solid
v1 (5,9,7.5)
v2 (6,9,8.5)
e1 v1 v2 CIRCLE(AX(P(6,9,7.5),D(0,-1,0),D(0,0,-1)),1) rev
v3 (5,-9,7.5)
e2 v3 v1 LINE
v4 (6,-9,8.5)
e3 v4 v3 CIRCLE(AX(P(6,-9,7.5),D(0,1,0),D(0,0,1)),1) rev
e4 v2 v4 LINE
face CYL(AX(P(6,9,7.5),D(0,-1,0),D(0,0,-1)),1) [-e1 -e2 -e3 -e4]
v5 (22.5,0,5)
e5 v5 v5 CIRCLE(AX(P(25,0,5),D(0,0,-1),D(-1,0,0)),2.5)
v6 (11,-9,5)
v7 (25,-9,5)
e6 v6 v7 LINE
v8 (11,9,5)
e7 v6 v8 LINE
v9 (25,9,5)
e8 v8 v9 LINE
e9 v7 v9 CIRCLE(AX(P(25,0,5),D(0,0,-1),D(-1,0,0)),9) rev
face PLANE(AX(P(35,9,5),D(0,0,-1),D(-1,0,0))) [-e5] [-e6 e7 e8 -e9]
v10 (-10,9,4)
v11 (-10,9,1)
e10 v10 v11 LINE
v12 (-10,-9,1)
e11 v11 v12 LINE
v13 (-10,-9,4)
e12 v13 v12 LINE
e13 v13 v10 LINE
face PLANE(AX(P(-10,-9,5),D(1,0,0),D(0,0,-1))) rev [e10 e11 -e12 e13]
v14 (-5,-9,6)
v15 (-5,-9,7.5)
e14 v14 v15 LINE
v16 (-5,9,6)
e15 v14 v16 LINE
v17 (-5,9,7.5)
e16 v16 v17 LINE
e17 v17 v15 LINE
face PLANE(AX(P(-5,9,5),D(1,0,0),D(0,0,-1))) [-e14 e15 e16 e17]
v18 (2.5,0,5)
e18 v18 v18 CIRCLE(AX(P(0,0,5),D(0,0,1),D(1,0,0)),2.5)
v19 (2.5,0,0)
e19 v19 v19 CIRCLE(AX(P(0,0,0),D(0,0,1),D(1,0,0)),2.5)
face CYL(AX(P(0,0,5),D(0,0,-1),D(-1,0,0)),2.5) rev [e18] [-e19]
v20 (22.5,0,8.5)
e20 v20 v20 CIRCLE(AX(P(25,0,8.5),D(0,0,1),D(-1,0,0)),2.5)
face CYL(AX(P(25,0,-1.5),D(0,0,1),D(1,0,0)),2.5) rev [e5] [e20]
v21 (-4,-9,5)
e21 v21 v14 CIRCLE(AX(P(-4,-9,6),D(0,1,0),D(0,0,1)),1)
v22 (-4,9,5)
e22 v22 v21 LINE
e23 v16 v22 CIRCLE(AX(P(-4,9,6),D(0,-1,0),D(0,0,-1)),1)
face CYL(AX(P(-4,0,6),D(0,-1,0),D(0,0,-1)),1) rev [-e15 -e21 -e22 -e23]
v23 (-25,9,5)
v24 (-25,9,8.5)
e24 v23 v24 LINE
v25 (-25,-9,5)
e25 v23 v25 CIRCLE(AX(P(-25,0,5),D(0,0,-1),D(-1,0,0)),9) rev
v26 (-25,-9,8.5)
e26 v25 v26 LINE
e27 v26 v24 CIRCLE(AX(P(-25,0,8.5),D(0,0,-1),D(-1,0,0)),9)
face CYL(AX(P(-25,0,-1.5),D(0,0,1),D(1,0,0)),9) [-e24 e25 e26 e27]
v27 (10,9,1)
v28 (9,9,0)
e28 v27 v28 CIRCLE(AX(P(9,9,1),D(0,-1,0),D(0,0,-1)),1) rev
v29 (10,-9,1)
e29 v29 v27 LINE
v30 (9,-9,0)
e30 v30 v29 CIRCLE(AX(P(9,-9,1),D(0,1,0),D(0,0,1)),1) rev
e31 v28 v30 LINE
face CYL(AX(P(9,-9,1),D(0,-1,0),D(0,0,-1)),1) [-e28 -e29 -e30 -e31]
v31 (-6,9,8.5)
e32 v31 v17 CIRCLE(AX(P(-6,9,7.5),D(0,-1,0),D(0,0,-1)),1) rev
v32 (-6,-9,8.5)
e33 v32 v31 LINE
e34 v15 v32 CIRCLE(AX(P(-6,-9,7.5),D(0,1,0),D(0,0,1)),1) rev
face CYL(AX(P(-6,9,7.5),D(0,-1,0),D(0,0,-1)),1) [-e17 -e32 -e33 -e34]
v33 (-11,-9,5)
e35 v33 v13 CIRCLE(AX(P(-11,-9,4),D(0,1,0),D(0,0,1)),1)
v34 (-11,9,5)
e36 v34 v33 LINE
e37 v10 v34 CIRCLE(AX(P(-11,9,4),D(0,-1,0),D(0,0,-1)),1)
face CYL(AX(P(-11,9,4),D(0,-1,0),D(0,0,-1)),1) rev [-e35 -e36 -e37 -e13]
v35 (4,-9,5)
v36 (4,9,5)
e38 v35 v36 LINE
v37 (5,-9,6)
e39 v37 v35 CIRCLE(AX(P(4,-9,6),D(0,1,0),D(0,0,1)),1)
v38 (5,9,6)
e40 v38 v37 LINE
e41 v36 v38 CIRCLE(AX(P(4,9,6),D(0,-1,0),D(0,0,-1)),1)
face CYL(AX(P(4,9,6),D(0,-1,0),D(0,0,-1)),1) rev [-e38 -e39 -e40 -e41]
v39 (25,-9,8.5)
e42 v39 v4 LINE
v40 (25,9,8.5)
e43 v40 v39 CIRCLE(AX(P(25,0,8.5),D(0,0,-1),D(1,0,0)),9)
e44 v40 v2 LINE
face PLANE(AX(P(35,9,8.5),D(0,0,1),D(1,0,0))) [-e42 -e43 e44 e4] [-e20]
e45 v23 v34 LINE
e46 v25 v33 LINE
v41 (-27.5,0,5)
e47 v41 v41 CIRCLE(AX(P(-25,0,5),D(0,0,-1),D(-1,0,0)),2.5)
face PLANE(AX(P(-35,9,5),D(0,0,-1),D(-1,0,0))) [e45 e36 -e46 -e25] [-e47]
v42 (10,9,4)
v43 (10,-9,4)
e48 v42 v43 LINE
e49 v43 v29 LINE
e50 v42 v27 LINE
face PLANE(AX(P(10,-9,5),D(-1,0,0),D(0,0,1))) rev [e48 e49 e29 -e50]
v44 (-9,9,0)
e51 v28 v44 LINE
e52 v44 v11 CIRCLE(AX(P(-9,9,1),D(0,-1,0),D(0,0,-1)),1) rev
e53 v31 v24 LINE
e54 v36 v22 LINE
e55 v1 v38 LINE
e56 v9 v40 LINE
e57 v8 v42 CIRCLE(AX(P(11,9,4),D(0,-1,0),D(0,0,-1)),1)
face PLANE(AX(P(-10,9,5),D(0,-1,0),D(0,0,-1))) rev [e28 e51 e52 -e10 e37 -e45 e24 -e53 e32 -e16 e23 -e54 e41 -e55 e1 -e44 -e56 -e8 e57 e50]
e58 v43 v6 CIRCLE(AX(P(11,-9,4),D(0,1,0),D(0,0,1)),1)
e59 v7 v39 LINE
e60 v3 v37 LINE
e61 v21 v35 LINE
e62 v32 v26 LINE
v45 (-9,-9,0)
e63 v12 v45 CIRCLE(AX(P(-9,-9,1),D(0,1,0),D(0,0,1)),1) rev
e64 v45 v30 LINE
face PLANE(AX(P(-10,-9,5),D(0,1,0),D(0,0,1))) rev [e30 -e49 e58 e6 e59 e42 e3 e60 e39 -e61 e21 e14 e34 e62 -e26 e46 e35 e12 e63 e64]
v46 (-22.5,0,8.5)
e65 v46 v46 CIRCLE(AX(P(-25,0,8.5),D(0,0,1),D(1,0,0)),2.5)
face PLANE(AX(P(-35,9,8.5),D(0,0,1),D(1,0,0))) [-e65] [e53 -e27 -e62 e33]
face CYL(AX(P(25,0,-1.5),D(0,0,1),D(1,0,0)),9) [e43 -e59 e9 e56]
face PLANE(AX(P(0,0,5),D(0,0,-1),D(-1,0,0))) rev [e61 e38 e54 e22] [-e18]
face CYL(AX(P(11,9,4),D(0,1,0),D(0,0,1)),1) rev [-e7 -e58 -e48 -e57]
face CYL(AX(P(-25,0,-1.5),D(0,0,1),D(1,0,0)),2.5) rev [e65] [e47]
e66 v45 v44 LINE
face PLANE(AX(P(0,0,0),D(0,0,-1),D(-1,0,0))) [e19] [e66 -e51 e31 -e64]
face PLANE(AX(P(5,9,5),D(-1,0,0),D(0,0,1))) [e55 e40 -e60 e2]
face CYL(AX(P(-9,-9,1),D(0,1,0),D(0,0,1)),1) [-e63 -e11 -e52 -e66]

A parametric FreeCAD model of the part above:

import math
import FreeCAD as App
import Part
import Sketcher

V = App.Vector


def edges_at(feature, points):
    """Names of the edges that pass closest to the given points."""
    edges = feature.Shape.Edges
    near = lambda p: min(range(len(edges)), key=lambda i: edges[i].distToShape(Part.Vertex(*p))[0])
    return sorted({f"Edge{near(p) + 1}" for p in points})

doc = App.newDocument("Part")
params = doc.addObject("Spreadsheet::Sheet", "Params")
for row, (alias, value) in enumerate([
    ("sketch1_diameter", "5 mm"),
    ("sketch1_width", "20 mm"),
    ("sketch1_height", "18 mm"),
    ("pad1_length", "5 mm"),
    ("sketch2_width", "30 mm"),
    ("sketch2_height", "3.5 mm"),
    ("pad2_length", "18 mm"),
    ("fillet_radius", "1 mm"),
    ("sketch3_diameter", "5 mm"),
    ("sketch3_radius", "9 mm"),
    ("sketch3_width", "10 mm"),
    ("pocket1_length", "10 mm"),
], start=1):
    params.set(f"A{row}", alias)
    params.set(f"B{row}", "=" + value)
    params.setAlias(f"B{row}", alias)

body = doc.addObject("PartDesign::Body", "Body")

# Sketch on XY plane
sketch1 = body.newObject("Sketcher::SketchObject", "Sketch")
sketch1.AttachmentSupport = (doc.getObject("XY_Plane"), [""])
sketch1.MapMode = "FlatFace"
sketch1.addGeometry(Part.LineSegment(V(-10, 9, 0), V(-10, -9, 0)), False)
sketch1.addGeometry(Part.LineSegment(V(-10, -9, 0), V(10, -9, 0)), False)
sketch1.addGeometry(Part.LineSegment(V(10, -9, 0), V(10, 9, 0)), False)
sketch1.addGeometry(Part.LineSegment(V(10, 9, 0), V(-10, 9, 0)), False)
sketch1.addGeometry(Part.Circle(V(0, 0, 0), V(0, 0, 1), 2.5), False)
sketch1.addConstraint(Sketcher.Constraint("Coincident", 0, 2, 1, 1))
sketch1.addConstraint(Sketcher.Constraint("Coincident", 1, 2, 2, 1))
sketch1.addConstraint(Sketcher.Constraint("Coincident", 2, 2, 3, 1))
sketch1.addConstraint(Sketcher.Constraint("Coincident", 3, 2, 0, 1))
sketch1.addConstraint(Sketcher.Constraint("Vertical", 0))
sketch1.addConstraint(Sketcher.Constraint("Horizontal", 1))
sketch1.addConstraint(Sketcher.Constraint("Vertical", 2))
sketch1.addConstraint(Sketcher.Constraint("Horizontal", 3))
sketch1.addConstraint(Sketcher.Constraint("Coincident", 4, 3, -1, 1))
sketch1.addConstraint(Sketcher.Constraint("Symmetric", 0, 2, 2, 2, -1, 1))
sketch1.addConstraint(Sketcher.Constraint("Diameter", 4, 5.0))
sketch1.addConstraint(Sketcher.Constraint("DistanceX", 1, 1, 1, 2, 20.0))
sketch1.addConstraint(Sketcher.Constraint("DistanceY", 0, 2, 0, 1, 18.0))
sketch1.setExpression("Constraints[10]", "Params.sketch1_diameter")
sketch1.setExpression("Constraints[11]", "Params.sketch1_width")
sketch1.setExpression("Constraints[12]", "Params.sketch1_height")
pad1 = body.newObject("PartDesign::Pad", "Pad")
pad1.Profile = sketch1
pad1.setExpression("Length", "Params.pad1_length")

# Sketch on XZ plane
sketch2 = body.newObject("Sketcher::SketchObject", "Sketch001")
sketch2.AttachmentSupport = (doc.getObject("XZ_Plane"), [""])
sketch2.MapMode = "FlatFace"
sketch2.AttachmentOffset = App.Placement(V(0, 0, 9), App.Rotation())
sketch2.addGeometry(Part.LineSegment(V(5, 8.5, 0), V(5, 5, 0)), False)
sketch2.addGeometry(Part.LineSegment(V(5, 5, 0), V(35, 5, 0)), False)
sketch2.addGeometry(Part.LineSegment(V(35, 5, 0), V(35, 8.5, 0)), False)
sketch2.addGeometry(Part.LineSegment(V(35, 8.5, 0), V(5, 8.5, 0)), False)
sketch2.addGeometry(Part.LineSegment(V(-35, 8.5, 0), V(-35, 5, 0)), False)
sketch2.addGeometry(Part.LineSegment(V(-35, 5, 0), V(-5, 5, 0)), False)
sketch2.addGeometry(Part.LineSegment(V(-5, 5, 0), V(-5, 8.5, 0)), False)
sketch2.addGeometry(Part.LineSegment(V(-5, 8.5, 0), V(-35, 8.5, 0)), False)
sketch2.addConstraint(Sketcher.Constraint("Coincident", 0, 2, 1, 1))
sketch2.addConstraint(Sketcher.Constraint("Coincident", 1, 2, 2, 1))
sketch2.addConstraint(Sketcher.Constraint("Coincident", 2, 2, 3, 1))
sketch2.addConstraint(Sketcher.Constraint("Coincident", 3, 2, 0, 1))
sketch2.addConstraint(Sketcher.Constraint("Coincident", 4, 2, 5, 1))
sketch2.addConstraint(Sketcher.Constraint("Coincident", 5, 2, 6, 1))
sketch2.addConstraint(Sketcher.Constraint("Coincident", 6, 2, 7, 1))
sketch2.addConstraint(Sketcher.Constraint("Coincident", 7, 2, 4, 1))
sketch2.addConstraint(Sketcher.Constraint("Vertical", 0))
sketch2.addConstraint(Sketcher.Constraint("Horizontal", 1))
sketch2.addConstraint(Sketcher.Constraint("Vertical", 2))
sketch2.addConstraint(Sketcher.Constraint("Horizontal", 3))
sketch2.addConstraint(Sketcher.Constraint("Vertical", 4))
sketch2.addConstraint(Sketcher.Constraint("Horizontal", 5))
sketch2.addConstraint(Sketcher.Constraint("Vertical", 6))
sketch2.addConstraint(Sketcher.Constraint("Horizontal", 7))
sketch2.addConstraint(Sketcher.Constraint("Symmetric", 1, 2, 4, 2, -2))
sketch2.addConstraint(Sketcher.Constraint("Symmetric", 3, 2, 6, 2, -2))
sketch2.addConstraint(Sketcher.Constraint("DistanceX", 1, 1, 1, 2, 30.0))
sketch2.addConstraint(Sketcher.Constraint("DistanceY", 0, 2, 0, 1, 3.5))
sketch2.addConstraint(Sketcher.Constraint("DistanceX", -1, 1, 0, 2, 5.0))
sketch2.addConstraint(Sketcher.Constraint("DistanceY", -1, 1, 0, 2, 5.0))
sketch2.setExpression("Constraints[18]", "Params.sketch2_width")
sketch2.setExpression("Constraints[19]", "Params.sketch2_height")
pad2 = body.newObject("PartDesign::Pad", "Pad001")
pad2.Profile = sketch2
pad2.setExpression("Length", "Params.pad2_length")
pad2.Reversed = True
doc.recompute()

fillet = body.newObject("PartDesign::Fillet", "Fillet")
fillet.Base = (pad2, edges_at(pad2, [
    (-10, 0, 5),
    (-5, 0, 5),
    (-5, 0, 8.5),
    (5, 0, 5),
    (5, 0, 8.5),
    (10, 0, 5),
    (-10, 0, 0),
    (10, 0, 0),
]))
fillet.setExpression("Radius", "Params.fillet_radius")

# Sketch on XY plane
sketch3 = body.newObject("Sketcher::SketchObject", "Sketch002")
sketch3.AttachmentSupport = (doc.getObject("XY_Plane"), [""])
sketch3.MapMode = "FlatFace"
sketch3.AttachmentOffset = App.Placement(V(0, 0, 8.5), App.Rotation())
sketch3.addGeometry(Part.Circle(V(-25, 0, 0), V(0, 0, 1), 2.5), False)
sketch3.addGeometry(Part.Circle(V(25, 0, 0), V(0, 0, 1), 2.5), False)
sketch3.addGeometry(Part.LineSegment(V(35, 9, 0), V(25, 9, 0)), False)
sketch3.addGeometry(Part.ArcOfCircle(Part.Circle(V(25, 0, 0), V(0, 0, 1), 9), math.radians(-90), math.radians(90)), False)
sketch3.addGeometry(Part.LineSegment(V(25, -9, 0), V(35, -9, 0)), False)
sketch3.addGeometry(Part.LineSegment(V(35, -9, 0), V(35, 9, 0)), False)
sketch3.addGeometry(Part.LineSegment(V(-35, 9, 0), V(-35, -9, 0)), False)
sketch3.addGeometry(Part.LineSegment(V(-35, -9, 0), V(-25, -9, 0)), False)
sketch3.addGeometry(Part.ArcOfCircle(Part.Circle(V(-25, 0, 0), V(0, 0, 1), 9), math.radians(90), math.radians(270)), False)
sketch3.addGeometry(Part.LineSegment(V(-25, 9, 0), V(-35, 9, 0)), False)
sketch3.addConstraint(Sketcher.Constraint("Tangent", 2, 2, 3, 2))
sketch3.addConstraint(Sketcher.Constraint("Tangent", 3, 1, 4, 1))
sketch3.addConstraint(Sketcher.Constraint("Coincident", 4, 2, 5, 1))
sketch3.addConstraint(Sketcher.Constraint("Coincident", 5, 2, 2, 1))
sketch3.addConstraint(Sketcher.Constraint("Coincident", 6, 2, 7, 1))
sketch3.addConstraint(Sketcher.Constraint("Tangent", 7, 2, 8, 2))
sketch3.addConstraint(Sketcher.Constraint("Tangent", 8, 1, 9, 1))
sketch3.addConstraint(Sketcher.Constraint("Coincident", 9, 2, 6, 1))
sketch3.addConstraint(Sketcher.Constraint("Horizontal", 2))
sketch3.addConstraint(Sketcher.Constraint("Horizontal", 4))
sketch3.addConstraint(Sketcher.Constraint("Vertical", 5))
sketch3.addConstraint(Sketcher.Constraint("Vertical", 6))
sketch3.addConstraint(Sketcher.Constraint("Horizontal", 7))
sketch3.addConstraint(Sketcher.Constraint("Horizontal", 9))
sketch3.addConstraint(Sketcher.Constraint("Coincident", 3, 3, 1, 3))
sketch3.addConstraint(Sketcher.Constraint("Coincident", 8, 3, 0, 3))
sketch3.addConstraint(Sketcher.Constraint("Equal", 0, 1))
sketch3.addConstraint(Sketcher.Constraint("Equal", 3, 8))
sketch3.addConstraint(Sketcher.Constraint("Symmetric", 0, 3, 1, 3, -1, 1))
sketch3.addConstraint(Sketcher.Constraint("Symmetric", 4, 2, 6, 2, -2))
sketch3.addConstraint(Sketcher.Constraint("Diameter", 0, 5.0))
sketch3.addConstraint(Sketcher.Constraint("Radius", 3, 9.0))
sketch3.addConstraint(Sketcher.Constraint("DistanceX", 2, 2, 2, 1, 10.0))
sketch3.addConstraint(Sketcher.Constraint("DistanceX", 0, 3, -1, 1, 25.0))
sketch3.setExpression("Constraints[20]", "Params.sketch3_diameter")
sketch3.setExpression("Constraints[21]", "Params.sketch3_radius")
sketch3.setExpression("Constraints[22]", "Params.sketch3_width")
pocket1 = body.newObject("PartDesign::Pocket", "Pocket")
pocket1.Profile = sketch3
pocket1.setExpression("Length", "Params.pocket1_length")

doc.recompute()
